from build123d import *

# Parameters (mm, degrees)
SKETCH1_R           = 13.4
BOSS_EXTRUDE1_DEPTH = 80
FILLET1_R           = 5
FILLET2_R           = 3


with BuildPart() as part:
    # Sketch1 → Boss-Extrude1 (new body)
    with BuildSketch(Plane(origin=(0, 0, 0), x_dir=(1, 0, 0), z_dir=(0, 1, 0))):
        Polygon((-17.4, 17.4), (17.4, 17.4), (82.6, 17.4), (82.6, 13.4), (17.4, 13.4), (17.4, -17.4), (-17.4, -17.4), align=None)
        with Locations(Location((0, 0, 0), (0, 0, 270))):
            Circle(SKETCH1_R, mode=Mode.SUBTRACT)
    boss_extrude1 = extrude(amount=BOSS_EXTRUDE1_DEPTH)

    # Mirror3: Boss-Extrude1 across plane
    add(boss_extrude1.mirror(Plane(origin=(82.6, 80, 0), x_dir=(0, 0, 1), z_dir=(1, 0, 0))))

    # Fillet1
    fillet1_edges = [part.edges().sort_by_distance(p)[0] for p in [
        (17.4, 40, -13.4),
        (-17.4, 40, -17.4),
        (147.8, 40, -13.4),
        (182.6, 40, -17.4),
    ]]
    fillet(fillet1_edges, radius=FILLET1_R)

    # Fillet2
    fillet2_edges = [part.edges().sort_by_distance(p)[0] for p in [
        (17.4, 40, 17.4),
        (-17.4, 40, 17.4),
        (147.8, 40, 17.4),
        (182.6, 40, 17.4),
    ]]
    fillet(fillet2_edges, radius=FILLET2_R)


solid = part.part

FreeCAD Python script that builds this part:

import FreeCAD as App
import Part
import Sketcher
from FreeCAD import Vector


def edges_at(feature, points):
    """Names of the edges that pass closest to the given points."""
    edges = feature.Shape.Edges
    near = lambda p: min(range(len(edges)), key=lambda i: edges[i].distToShape(Part.Vertex(*p))[0])
    return sorted({f"Edge{near(p) + 1}" for p in points})

doc = App.newDocument("Part")
body = doc.addObject("PartDesign::Body", "Body")

# Sketch on XZ plane
sketch1 = doc.addObject("Sketcher::SketchObject", "Sketch")
body.addObject(sketch1)
sketch1.AttachmentSupport = (doc.XZ_Plane, [""])
sketch1.MapMode = "FlatFace"
sketch1.addGeometry([
    Part.LineSegment(Vector(82.6, -17.4, 0), Vector(-17.4, -17.4, 0)),  # 0
    Part.LineSegment(Vector(-17.4, -17.4, 0), Vector(-17.4, 17.4, 0)),  # 1
    Part.LineSegment(Vector(-17.4, 17.4, 0), Vector(17.4, 17.4, 0)),  # 2
    Part.LineSegment(Vector(17.4, 17.4, 0), Vector(17.4, -13.4, 0)),  # 3
    Part.LineSegment(Vector(17.4, -13.4, 0), Vector(82.6, -13.4, 0)),  # 4
    Part.LineSegment(Vector(82.6, -13.4, 0), Vector(82.6, -17.4, 0)),  # 5
    Part.Circle(Vector(0, 0, 0), Vector(0, 0, 1), 13.4),  # 6
], False)
sketch1.addConstraint([
    Sketcher.Constraint("Coincident", 0, 2, 1, 1),
    Sketcher.Constraint("Coincident", 1, 2, 2, 1),
    Sketcher.Constraint("Coincident", 2, 2, 3, 1),
    Sketcher.Constraint("Coincident", 3, 2, 4, 1),
    Sketcher.Constraint("Coincident", 4, 2, 5, 1),
    Sketcher.Constraint("Coincident", 5, 2, 0, 1),
    Sketcher.Constraint("Horizontal", 0),
    Sketcher.Constraint("Vertical", 1),
    Sketcher.Constraint("Horizontal", 2),
    Sketcher.Constraint("Vertical", 3),
    Sketcher.Constraint("Horizontal", 4),
    Sketcher.Constraint("Vertical", 5),
    Sketcher.Constraint("Coincident", 6, 3, -1, 1),
    Sketcher.Constraint("Symmetric", 0, 2, 2, 2, -1, 1),
    Sketcher.Constraint("Equal", 2, 1),
    Sketcher.Constraint("Diameter", 6, 26.8),
    Sketcher.Constraint("DistanceX", 0, 2, 0, 1, 100.0),
    Sketcher.Constraint("DistanceY", 5, 2, 5, 1, 4.0),
    Sketcher.Constraint("DistanceX", 2, 1, 2, 2, 34.8),
])
pad1 = doc.addObject("PartDesign::Pad", "Pad")
body.addObject(pad1)
pad1.Profile = sketch1
pad1.Length = 80
pad1.Reversed = True
doc.recompute()

datumplane = doc.addObject("PartDesign::Plane", "DatumPlane")
body.addObject(datumplane)
datumplane.AttachmentSupport = (doc.YZ_Plane, [""])
datumplane.MapMode = "FlatFace"
datumplane.AttachmentOffset = App.Placement(Vector(0, 0, 82.6), App.Rotation())
mirrored = doc.addObject("PartDesign::Mirrored", "Mirrored")
body.addObject(mirrored)
mirrored.Originals = [pad1]
mirrored.MirrorPlane = (datumplane, [""])
body.Tip = mirrored
doc.recompute()

fillet = doc.addObject("PartDesign::Fillet", "Fillet")
body.addObject(fillet)
fillet.Base = (mirrored, edges_at(mirrored, [
    (17.4, 40, -13.4),
    (-17.4, 40, -17.4),
    (147.8, 40, -13.4),
    (182.6, 40, -17.4),
]))
fillet.Radius = 5
doc.recompute()

fillet2 = doc.addObject("PartDesign::Fillet", "Fillet001")
body.addObject(fillet2)
fillet2.Base = (fillet, edges_at(fillet, [
    (17.4, 40, 17.4),
    (-17.4, 40, 17.4),
    (147.8, 40, 17.4),
    (182.6, 40, 17.4),
]))
fillet2.Radius = 3

doc.recompute()
